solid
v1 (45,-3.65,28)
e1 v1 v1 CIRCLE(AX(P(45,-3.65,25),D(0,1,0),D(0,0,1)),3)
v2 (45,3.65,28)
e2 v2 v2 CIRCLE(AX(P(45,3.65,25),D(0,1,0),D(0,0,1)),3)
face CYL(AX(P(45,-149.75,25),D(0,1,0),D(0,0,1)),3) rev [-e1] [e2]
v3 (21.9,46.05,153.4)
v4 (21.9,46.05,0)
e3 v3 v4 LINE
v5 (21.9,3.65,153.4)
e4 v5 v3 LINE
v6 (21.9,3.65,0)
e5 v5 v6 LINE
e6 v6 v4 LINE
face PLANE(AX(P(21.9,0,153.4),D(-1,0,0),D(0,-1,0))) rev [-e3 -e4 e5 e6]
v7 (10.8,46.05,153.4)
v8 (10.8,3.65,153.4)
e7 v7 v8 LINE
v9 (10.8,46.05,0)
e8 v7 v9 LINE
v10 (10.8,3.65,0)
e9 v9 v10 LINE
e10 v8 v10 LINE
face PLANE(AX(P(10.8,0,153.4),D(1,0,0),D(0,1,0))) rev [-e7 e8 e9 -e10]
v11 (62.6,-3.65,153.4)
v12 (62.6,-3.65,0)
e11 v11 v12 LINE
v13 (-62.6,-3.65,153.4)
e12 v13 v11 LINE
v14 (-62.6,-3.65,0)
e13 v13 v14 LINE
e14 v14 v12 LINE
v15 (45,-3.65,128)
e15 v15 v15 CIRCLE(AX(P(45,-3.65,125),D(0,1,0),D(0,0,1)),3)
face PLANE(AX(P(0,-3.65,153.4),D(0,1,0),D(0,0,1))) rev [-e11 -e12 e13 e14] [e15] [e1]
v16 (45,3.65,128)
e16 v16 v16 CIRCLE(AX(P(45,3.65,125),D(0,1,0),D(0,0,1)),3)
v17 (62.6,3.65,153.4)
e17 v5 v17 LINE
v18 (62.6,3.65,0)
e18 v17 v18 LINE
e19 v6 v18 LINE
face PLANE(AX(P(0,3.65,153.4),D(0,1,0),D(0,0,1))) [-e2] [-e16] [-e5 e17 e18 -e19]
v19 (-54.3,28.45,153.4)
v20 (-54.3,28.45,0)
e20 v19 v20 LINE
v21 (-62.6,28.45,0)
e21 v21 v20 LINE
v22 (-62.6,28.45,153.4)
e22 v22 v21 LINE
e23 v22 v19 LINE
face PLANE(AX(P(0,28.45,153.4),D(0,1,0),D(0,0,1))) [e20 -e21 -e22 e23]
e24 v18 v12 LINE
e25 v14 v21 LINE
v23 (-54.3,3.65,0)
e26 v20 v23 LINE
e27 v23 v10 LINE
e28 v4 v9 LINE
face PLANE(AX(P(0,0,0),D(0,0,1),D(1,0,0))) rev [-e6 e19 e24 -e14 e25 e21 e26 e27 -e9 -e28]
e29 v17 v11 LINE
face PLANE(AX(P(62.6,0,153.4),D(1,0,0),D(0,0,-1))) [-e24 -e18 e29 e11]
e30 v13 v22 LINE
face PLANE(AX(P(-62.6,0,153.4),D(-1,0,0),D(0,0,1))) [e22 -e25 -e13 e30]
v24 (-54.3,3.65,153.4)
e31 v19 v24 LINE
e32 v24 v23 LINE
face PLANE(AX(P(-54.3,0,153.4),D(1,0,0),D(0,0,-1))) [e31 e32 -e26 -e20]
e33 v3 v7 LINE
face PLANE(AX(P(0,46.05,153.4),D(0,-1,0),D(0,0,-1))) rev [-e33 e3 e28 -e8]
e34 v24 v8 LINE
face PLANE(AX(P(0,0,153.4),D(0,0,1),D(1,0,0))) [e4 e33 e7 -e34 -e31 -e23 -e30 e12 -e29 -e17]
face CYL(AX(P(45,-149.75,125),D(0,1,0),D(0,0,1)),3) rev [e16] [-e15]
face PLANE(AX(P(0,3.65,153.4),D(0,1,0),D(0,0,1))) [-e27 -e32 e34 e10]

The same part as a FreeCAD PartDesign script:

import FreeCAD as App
import Part
import Sketcher

doc = App.newDocument("Part")
params = doc.addObject("Spreadsheet::Sheet", "Params")
for row, (alias, value) in enumerate([
    ("sketch1_width", "125.2 mm"),
    ("sketch1_width2", "40.7 mm"),
    ("sketch1_width3", "11.1 mm"),
    ("sketch1_width4", "65.1 mm"),
    ("sketch1_height", "32.1 mm"),
    ("pad1_length", "153.4 mm"),
    ("sketch2_diameter", "6 mm"),
    ("pocket1_length", "153.4 mm"),
    ("linearpattern_pitch", "100 mm"),
], start=1):
    params.set(f"A{row}", alias)
    params.set(f"B{row}", "=" + value)
    params.setAlias(f"B{row}", alias)

body = doc.addObject("PartDesign::Body", "Body")

sketch1 = body.newObject("Sketcher::SketchObject", "Sketch")
sketch1.AttachmentSupport = (doc.getObject("XY_Plane"), [""])
sketch1.MapMode = "FlatFace"
sketch1.addGeometry([
    Part.LineSegment(App.Vector(-63, 28, 0), App.Vector(-63, -4, 0)),
    Part.LineSegment(App.Vector(-63, -4, 0), App.Vector(63, -4, 0)),
    Part.LineSegment(App.Vector(63, -4, 0), App.Vector(63, 4, 0)),
    Part.LineSegment(App.Vector(63, 4, 0), App.Vector(22, 4, 0)),
    Part.LineSegment(App.Vector(22, 4, 0), App.Vector(22, 46, 0)),
    Part.LineSegment(App.Vector(22, 46, 0), App.Vector(11, 46, 0)),
    Part.LineSegment(App.Vector(11, 46, 0), App.Vector(11, 4, 0)),
    Part.LineSegment(App.Vector(11, 4, 0), App.Vector(-54, 4, 0)),
    Part.LineSegment(App.Vector(-54, 4, 0), App.Vector(-54, 28, 0)),
    Part.LineSegment(App.Vector(-54, 28, 0), App.Vector(-63, 28, 0)),
], False)
sketch1.addConstraint([
    Sketcher.Constraint("Coincident", 0, 2, 1, 1),
    Sketcher.Constraint("Coincident", 1, 2, 2, 1),
    Sketcher.Constraint("Coincident", 2, 2, 3, 1),
    Sketcher.Constraint("Coincident", 3, 2, 4, 1),
    Sketcher.Constraint("Coincident", 4, 2, 5, 1),
    Sketcher.Constraint("Coincident", 5, 2, 6, 1),
    Sketcher.Constraint("Coincident", 6, 2, 7, 1),
    Sketcher.Constraint("Coincident", 7, 2, 8, 1),
    Sketcher.Constraint("Coincident", 8, 2, 9, 1),
    Sketcher.Constraint("Coincident", 9, 2, 0, 1),
    Sketcher.Constraint("Vertical", 0),
    Sketcher.Constraint("Horizontal", 1),
    Sketcher.Constraint("Vertical", 2),
    Sketcher.Constraint("Horizontal", 3),
    Sketcher.Constraint("Vertical", 4),
    Sketcher.Constraint("Horizontal", 5),
    Sketcher.Constraint("Vertical", 6),
    Sketcher.Constraint("Horizontal", 7),
    Sketcher.Constraint("Vertical", 8),
    Sketcher.Constraint("Horizontal", 9),
    Sketcher.Constraint("Symmetric", 0, 2, 2, 2, -1, 1),
    Sketcher.Constraint("Horizontal", 3, 2, 6, 2),
    Sketcher.Constraint("DistanceX", 1, 1, 1, 2, 125.2),
    Sketcher.Constraint("DistanceX", 3, 2, 3, 1, 40.7),
    Sketcher.Constraint("DistanceX", 5, 2, 5, 1, 11.1),
    Sketcher.Constraint("DistanceX", 7, 2, 7, 1, 65.1),
    Sketcher.Constraint("DistanceY", 0, 2, 0, 1, 32.1),
    Sketcher.Constraint("DistanceY", 2, 1, 2, 2, 7.3),
    Sketcher.Constraint("DistanceY", 4, 1, 4, 2, 42.4),
])
sketch1.setExpression("Constraints[22]", "Params.sketch1_width")
sketch1.setExpression("Constraints[23]", "Params.sketch1_width2")
sketch1.setExpression("Constraints[24]", "Params.sketch1_width3")
sketch1.setExpression("Constraints[25]", "Params.sketch1_width4")
sketch1.setExpression("Constraints[26]", "Params.sketch1_height")
pad1 = body.newObject("PartDesign::Pad", "Pad")
pad1.Profile = sketch1
pad1.setExpression("Length", "Params.pad1_length")

sketch2 = body.newObject("Sketcher::SketchObject", "Sketch001")
sketch2.AttachmentSupport = (doc.getObject("XZ_Plane"), [""])
sketch2.MapMode = "FlatFace"
sketch2.AttachmentOffset = App.Placement(App.Vector(0, 0, -3.65), App.Rotation())
sketch2.addGeometry(Part.Circle(App.Vector(45, 25, 0), App.Vector(0, 0, 1), 3), False)
sketch2.addConstraint([
    Sketcher.Constraint("Diameter", 0, 6.0),
    Sketcher.Constraint("DistanceX", -1, 1, 0, 3, 45.0),
    Sketcher.Constraint("DistanceY", -1, 1, 0, 3, 25.0),
])
sketch2.setExpression("Constraints[0]", "Params.sketch2_diameter")
pocket1 = body.newObject("PartDesign::Pocket", "Pocket")
pocket1.Profile = sketch2
pocket1.setExpression("Length", "Params.pocket1_length")
pocket1.Reversed = True
doc.recompute()

linearpattern = body.newObject("PartDesign::LinearPattern", "LinearPattern")
linearpattern.Originals = [pocket1]
linearpattern.Direction = (doc.getObject("Z_Axis"), [""])
linearpattern.Mode = "offset"
linearpattern.setExpression("Offset", "Params.linearpattern_pitch")
linearpattern.Occurrences = 2
body.Tip = linearpattern

doc.recompute()
